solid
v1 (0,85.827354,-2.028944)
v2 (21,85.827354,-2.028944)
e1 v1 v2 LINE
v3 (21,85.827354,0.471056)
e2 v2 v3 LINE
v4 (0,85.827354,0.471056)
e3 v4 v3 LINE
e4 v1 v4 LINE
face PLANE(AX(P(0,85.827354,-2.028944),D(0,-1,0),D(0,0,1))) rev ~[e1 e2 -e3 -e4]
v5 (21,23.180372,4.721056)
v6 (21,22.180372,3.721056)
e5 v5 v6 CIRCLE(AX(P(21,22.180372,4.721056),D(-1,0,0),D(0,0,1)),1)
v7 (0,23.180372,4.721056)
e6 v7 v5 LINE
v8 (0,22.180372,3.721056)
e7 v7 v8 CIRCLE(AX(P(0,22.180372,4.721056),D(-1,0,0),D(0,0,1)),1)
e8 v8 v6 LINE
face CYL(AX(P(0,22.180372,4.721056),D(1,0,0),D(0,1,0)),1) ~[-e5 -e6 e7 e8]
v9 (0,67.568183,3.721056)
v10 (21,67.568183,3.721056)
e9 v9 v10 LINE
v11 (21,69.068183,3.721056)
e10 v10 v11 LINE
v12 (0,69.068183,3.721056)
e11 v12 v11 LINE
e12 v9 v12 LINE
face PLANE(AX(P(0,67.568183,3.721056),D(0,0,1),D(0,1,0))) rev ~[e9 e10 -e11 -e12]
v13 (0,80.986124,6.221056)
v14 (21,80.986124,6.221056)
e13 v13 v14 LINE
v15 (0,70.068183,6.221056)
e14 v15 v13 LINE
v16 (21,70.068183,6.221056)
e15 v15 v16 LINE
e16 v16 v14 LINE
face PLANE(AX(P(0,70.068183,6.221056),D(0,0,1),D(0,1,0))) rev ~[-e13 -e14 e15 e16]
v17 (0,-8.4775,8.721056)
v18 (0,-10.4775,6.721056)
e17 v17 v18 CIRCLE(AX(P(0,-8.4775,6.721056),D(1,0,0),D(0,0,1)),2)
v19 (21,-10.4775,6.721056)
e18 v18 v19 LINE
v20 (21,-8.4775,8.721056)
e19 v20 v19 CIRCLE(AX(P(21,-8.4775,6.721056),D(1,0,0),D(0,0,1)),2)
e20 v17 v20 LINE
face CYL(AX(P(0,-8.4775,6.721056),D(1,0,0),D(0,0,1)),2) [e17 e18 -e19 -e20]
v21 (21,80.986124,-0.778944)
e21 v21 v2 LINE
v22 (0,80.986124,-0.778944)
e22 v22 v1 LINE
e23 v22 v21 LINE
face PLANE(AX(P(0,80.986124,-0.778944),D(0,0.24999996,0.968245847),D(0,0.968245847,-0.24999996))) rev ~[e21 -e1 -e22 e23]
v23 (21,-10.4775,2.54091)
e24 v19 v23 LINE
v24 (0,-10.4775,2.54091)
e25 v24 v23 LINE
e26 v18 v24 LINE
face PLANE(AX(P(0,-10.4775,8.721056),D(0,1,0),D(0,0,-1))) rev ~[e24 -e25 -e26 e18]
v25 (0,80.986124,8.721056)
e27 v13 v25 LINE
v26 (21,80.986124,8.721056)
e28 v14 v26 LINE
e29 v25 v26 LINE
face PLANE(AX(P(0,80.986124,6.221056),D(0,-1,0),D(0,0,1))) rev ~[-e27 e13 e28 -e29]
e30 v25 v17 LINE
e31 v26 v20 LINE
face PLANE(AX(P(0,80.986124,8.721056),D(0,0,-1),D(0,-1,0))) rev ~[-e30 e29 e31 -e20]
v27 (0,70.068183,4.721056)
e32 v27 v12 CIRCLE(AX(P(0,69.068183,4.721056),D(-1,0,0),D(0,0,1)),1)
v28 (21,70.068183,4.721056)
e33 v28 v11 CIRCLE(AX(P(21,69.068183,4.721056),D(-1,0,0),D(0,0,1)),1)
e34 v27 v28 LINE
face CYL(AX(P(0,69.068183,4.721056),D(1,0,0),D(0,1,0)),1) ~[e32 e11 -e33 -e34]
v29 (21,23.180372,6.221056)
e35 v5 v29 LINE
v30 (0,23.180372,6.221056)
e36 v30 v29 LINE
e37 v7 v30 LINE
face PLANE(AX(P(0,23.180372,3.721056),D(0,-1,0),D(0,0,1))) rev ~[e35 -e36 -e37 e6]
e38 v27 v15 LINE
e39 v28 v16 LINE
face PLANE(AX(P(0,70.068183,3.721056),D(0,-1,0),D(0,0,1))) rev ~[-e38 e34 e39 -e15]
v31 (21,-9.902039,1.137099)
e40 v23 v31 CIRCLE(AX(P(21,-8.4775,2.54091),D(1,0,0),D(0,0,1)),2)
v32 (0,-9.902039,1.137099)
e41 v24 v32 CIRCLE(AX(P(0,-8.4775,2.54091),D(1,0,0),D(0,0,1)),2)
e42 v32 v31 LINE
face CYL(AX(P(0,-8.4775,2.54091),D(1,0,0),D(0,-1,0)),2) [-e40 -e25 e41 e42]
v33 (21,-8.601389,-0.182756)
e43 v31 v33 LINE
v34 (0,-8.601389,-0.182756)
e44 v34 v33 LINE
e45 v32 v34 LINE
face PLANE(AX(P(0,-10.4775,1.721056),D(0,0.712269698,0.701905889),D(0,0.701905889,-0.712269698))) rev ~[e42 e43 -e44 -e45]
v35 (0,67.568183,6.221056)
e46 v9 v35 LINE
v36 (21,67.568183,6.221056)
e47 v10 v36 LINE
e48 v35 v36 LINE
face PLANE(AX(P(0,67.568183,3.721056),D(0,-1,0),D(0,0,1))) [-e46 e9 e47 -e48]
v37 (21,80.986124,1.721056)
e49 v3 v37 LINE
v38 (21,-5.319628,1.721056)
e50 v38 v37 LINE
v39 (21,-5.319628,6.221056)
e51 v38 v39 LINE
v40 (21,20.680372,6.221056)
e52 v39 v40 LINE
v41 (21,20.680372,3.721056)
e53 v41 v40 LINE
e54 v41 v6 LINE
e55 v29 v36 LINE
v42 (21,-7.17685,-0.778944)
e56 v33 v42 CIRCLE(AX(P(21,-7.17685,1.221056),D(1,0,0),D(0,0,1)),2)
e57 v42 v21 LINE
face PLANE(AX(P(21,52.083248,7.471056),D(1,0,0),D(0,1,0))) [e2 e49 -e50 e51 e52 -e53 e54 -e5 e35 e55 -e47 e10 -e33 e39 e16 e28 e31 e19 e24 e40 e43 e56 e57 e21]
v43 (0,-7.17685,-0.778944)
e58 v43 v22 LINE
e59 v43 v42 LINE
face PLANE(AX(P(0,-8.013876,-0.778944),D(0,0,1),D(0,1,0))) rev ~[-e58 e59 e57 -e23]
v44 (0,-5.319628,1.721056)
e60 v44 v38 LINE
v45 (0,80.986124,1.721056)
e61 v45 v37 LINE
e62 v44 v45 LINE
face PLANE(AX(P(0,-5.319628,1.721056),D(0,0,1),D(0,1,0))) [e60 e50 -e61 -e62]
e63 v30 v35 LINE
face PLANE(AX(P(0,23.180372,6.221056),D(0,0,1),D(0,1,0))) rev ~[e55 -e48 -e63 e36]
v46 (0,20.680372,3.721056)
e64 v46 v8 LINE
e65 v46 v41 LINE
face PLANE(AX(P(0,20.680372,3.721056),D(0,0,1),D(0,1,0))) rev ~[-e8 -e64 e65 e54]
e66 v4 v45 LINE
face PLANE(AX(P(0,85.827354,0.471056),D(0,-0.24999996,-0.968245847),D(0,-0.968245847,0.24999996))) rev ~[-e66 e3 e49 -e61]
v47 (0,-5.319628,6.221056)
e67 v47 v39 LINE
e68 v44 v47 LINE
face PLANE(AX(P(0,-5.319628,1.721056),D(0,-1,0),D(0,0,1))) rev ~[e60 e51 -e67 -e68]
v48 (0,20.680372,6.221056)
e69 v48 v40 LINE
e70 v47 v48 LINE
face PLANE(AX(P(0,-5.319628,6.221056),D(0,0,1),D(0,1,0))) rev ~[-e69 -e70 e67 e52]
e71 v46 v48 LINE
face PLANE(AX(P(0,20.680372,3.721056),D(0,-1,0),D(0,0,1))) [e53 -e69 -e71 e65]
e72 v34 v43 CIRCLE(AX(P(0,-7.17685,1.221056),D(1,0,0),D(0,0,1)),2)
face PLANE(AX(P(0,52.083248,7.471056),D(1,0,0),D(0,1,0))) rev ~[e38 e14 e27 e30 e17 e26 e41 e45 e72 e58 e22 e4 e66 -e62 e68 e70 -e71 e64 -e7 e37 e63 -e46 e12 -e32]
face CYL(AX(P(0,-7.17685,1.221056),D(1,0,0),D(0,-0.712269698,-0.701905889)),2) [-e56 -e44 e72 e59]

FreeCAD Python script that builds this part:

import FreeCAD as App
import Part
import Sketcher
from FreeCAD import Vector


def edges_at(feature, points):
    """Names of the edges that pass closest to the given points."""
    edges = feature.Shape.Edges
    near = lambda p: min(range(len(edges)), key=lambda i: edges[i].distToShape(Part.Vertex(*p))[0])
    return sorted({f"Edge{near(p) + 1}" for p in points})

doc = App.newDocument("Part")
body = doc.addObject("PartDesign::Body", "Body")

sketch1 = doc.addObject("Sketcher::SketchObject", "Sketch")
body.addObject(sketch1)
sketch1.AttachmentSupport = (doc.YZ_Plane, [""])
sketch1.MapMode = "FlatFace"
sketch1.addGeometry(Part.LineSegment(Vector(81, 6.2, 0), Vector(81, 8.7, 0)), False)
sketch1.addGeometry(Part.LineSegment(Vector(81, 8.7, 0), Vector(-10.5, 8.7, 0)), False)
sketch1.addGeometry(Part.LineSegment(Vector(-10.5, 8.7, 0), Vector(-10.5, 1.7, 0)), False)
sketch1.addGeometry(Part.LineSegment(Vector(-10.5, 1.7, 0), Vector(-8, -0.8, 0)), False)
sketch1.addGeometry(Part.LineSegment(Vector(-8, -0.8, 0), Vector(81, -0.8, 0)), False)
sketch1.addGeometry(Part.LineSegment(Vector(81, -0.8, 0), Vector(85.8, -2, 0)), False)
sketch1.addGeometry(Part.LineSegment(Vector(85.8, -2, 0), Vector(85.8, 0.5, 0)), False)
sketch1.addGeometry(Part.LineSegment(Vector(85.8, 0.5, 0), Vector(81, 1.7, 0)), False)
sketch1.addGeometry(Part.LineSegment(Vector(81, 1.7, 0), Vector(-5.3, 1.7, 0)), False)
sketch1.addGeometry(Part.LineSegment(Vector(-5.3, 1.7, 0), Vector(-5.3, 6.2, 0)), False)
sketch1.addGeometry(Part.LineSegment(Vector(-5.3, 6.2, 0), Vector(20.7, 6.2, 0)), False)
sketch1.addGeometry(Part.LineSegment(Vector(20.7, 6.2, 0), Vector(20.7, 3.7, 0)), False)
sketch1.addGeometry(Part.LineSegment(Vector(20.7, 3.7, 0), Vector(23.2, 3.7, 0)), False)
sketch1.addGeometry(Part.LineSegment(Vector(23.2, 3.7, 0), Vector(23.2, 6.2, 0)), False)
sketch1.addGeometry(Part.LineSegment(Vector(23.2, 6.2, 0), Vector(67.6, 6.2, 0)), False)
sketch1.addGeometry(Part.LineSegment(Vector(67.6, 6.2, 0), Vector(67.6, 3.7, 0)), False)
sketch1.addGeometry(Part.LineSegment(Vector(67.6, 3.7, 0), Vector(70.1, 3.7, 0)), False)
sketch1.addGeometry(Part.LineSegment(Vector(70.1, 3.7, 0), Vector(70.1, 6.2, 0)), False)
sketch1.addGeometry(Part.LineSegment(Vector(70.1, 6.2, 0), Vector(81, 6.2, 0)), False)
sketch1.addConstraint(Sketcher.Constraint("Coincident", 0, 2, 1, 1))
sketch1.addConstraint(Sketcher.Constraint("Coincident", 1, 2, 2, 1))
sketch1.addConstraint(Sketcher.Constraint("Coincident", 2, 2, 3, 1))
sketch1.addConstraint(Sketcher.Constraint("Coincident", 3, 2, 4, 1))
sketch1.addConstraint(Sketcher.Constraint("Coincident", 4, 2, 5, 1))
sketch1.addConstraint(Sketcher.Constraint("Coincident", 5, 2, 6, 1))
sketch1.addConstraint(Sketcher.Constraint("Coincident", 6, 2, 7, 1))
sketch1.addConstraint(Sketcher.Constraint("Coincident", 7, 2, 8, 1))
sketch1.addConstraint(Sketcher.Constraint("Coincident", 8, 2, 9, 1))
sketch1.addConstraint(Sketcher.Constraint("Coincident", 9, 2, 10, 1))
sketch1.addConstraint(Sketcher.Constraint("Coincident", 10, 2, 11, 1))
sketch1.addConstraint(Sketcher.Constraint("Coincident", 11, 2, 12, 1))
sketch1.addConstraint(Sketcher.Constraint("Coincident", 12, 2, 13, 1))
sketch1.addConstraint(Sketcher.Constraint("Coincident", 13, 2, 14, 1))
sketch1.addConstraint(Sketcher.Constraint("Coincident", 14, 2, 15, 1))
sketch1.addConstraint(Sketcher.Constraint("Coincident", 15, 2, 16, 1))
sketch1.addConstraint(Sketcher.Constraint("Coincident", 16, 2, 17, 1))
sketch1.addConstraint(Sketcher.Constraint("Coincident", 17, 2, 18, 1))
sketch1.addConstraint(Sketcher.Constraint("Coincident", 18, 2, 0, 1))
sketch1.addConstraint(Sketcher.Constraint("Vertical", 0))
sketch1.addConstraint(Sketcher.Constraint("Horizontal", 1))
sketch1.addConstraint(Sketcher.Constraint("Vertical", 2))
sketch1.addConstraint(Sketcher.Constraint("Horizontal", 4))
sketch1.addConstraint(Sketcher.Constraint("Vertical", 6))
sketch1.addConstraint(Sketcher.Constraint("Horizontal", 8))
sketch1.addConstraint(Sketcher.Constraint("Vertical", 9))
sketch1.addConstraint(Sketcher.Constraint("Horizontal", 10))
sketch1.addConstraint(Sketcher.Constraint("Vertical", 11))
sketch1.addConstraint(Sketcher.Constraint("Horizontal", 12))
sketch1.addConstraint(Sketcher.Constraint("Vertical", 13))
sketch1.addConstraint(Sketcher.Constraint("Horizontal", 14))
sketch1.addConstraint(Sketcher.Constraint("Vertical", 15))
sketch1.addConstraint(Sketcher.Constraint("Horizontal", 16))
sketch1.addConstraint(Sketcher.Constraint("Vertical", 17))
sketch1.addConstraint(Sketcher.Constraint("Horizontal", 18))
sketch1.addConstraint(Sketcher.Constraint("Parallel", 5, 7))
sketch1.addConstraint(Sketcher.Constraint("Horizontal", 2, 2, 7, 2))
sketch1.addConstraint(Sketcher.Constraint("Horizontal", 10, 2, 13, 2))
sketch1.addConstraint(Sketcher.Constraint("Horizontal", 12, 2, 15, 2))
sketch1.addConstraint(Sketcher.Constraint("Horizontal", 14, 2, 17, 2))
sketch1.addConstraint(Sketcher.Constraint("Vertical", 0, 2, 4, 2))
sketch1.addConstraint(Sketcher.Constraint("Vertical", 4, 2, 7, 2))
sketch1.addConstraint(Sketcher.Constraint("Equal", 12, 16))
sketch1.addConstraint(Sketcher.Constraint("Equal", 16, 0))
sketch1.addConstraint(Sketcher.Constraint("Equal", 0, 6))
sketch1.addConstraint(Sketcher.Constraint("Equal", 6, 11))
sketch1.addConstraint(Sketcher.Constraint("DistanceX", 4, 1, 4, 2, 89.0))
sketch1.addConstraint(Sketcher.Constraint("DistanceX", 10, 1, 10, 2, 26.0))
sketch1.addConstraint(Sketcher.Constraint("DistanceY", 2, 2, 2, 1, 7.0))
sketch1.addConstraint(Sketcher.Constraint("Distance", 5, 5.000001))
sketch1.addConstraint(Sketcher.Constraint("DistanceX", 12, 1, 12, 2, 2.5))
sketch1.addConstraint(Sketcher.Constraint("DistanceY", 5, 2, 4, 2, 1.25))
sketch1.addConstraint(Sketcher.Constraint("DistanceX", 8, 2, 8, 1, 86.305752))
sketch1.addConstraint(Sketcher.Constraint("DistanceX", 14, 1, 14, 2, 44.387811))
sketch1.addConstraint(Sketcher.Constraint("DistanceX", 1, 2, -1, 1, 10.4775))
sketch1.addConstraint(Sketcher.Constraint("DistanceX", 1, 2, 1, 1, 91.463624))
sketch1.addConstraint(Sketcher.Constraint("DistanceY", -1, 1, 0, 2, 8.721056))
pad1 = doc.addObject("PartDesign::Pad", "Pad")
body.addObject(pad1)
pad1.Profile = sketch1
pad1.Length = 21
doc.recompute()

fillet = doc.addObject("PartDesign::Fillet", "Fillet")
body.addObject(fillet)
fillet.Base = (pad1, edges_at(pad1, [(10.5, -10.477, 8.721), (10.5, -8.014, -0.779), (10.5, -10.477, 1.721)]))
fillet.Radius = 2
doc.recompute()

fillet2 = doc.addObject("PartDesign::Fillet", "Fillet001")
body.addObject(fillet2)
fillet2.Base = (fillet, edges_at(fillet, [(10.5, 23.18, 3.721), (10.5, 70.068, 3.721)]))
fillet2.Radius = 1

doc.recompute()
